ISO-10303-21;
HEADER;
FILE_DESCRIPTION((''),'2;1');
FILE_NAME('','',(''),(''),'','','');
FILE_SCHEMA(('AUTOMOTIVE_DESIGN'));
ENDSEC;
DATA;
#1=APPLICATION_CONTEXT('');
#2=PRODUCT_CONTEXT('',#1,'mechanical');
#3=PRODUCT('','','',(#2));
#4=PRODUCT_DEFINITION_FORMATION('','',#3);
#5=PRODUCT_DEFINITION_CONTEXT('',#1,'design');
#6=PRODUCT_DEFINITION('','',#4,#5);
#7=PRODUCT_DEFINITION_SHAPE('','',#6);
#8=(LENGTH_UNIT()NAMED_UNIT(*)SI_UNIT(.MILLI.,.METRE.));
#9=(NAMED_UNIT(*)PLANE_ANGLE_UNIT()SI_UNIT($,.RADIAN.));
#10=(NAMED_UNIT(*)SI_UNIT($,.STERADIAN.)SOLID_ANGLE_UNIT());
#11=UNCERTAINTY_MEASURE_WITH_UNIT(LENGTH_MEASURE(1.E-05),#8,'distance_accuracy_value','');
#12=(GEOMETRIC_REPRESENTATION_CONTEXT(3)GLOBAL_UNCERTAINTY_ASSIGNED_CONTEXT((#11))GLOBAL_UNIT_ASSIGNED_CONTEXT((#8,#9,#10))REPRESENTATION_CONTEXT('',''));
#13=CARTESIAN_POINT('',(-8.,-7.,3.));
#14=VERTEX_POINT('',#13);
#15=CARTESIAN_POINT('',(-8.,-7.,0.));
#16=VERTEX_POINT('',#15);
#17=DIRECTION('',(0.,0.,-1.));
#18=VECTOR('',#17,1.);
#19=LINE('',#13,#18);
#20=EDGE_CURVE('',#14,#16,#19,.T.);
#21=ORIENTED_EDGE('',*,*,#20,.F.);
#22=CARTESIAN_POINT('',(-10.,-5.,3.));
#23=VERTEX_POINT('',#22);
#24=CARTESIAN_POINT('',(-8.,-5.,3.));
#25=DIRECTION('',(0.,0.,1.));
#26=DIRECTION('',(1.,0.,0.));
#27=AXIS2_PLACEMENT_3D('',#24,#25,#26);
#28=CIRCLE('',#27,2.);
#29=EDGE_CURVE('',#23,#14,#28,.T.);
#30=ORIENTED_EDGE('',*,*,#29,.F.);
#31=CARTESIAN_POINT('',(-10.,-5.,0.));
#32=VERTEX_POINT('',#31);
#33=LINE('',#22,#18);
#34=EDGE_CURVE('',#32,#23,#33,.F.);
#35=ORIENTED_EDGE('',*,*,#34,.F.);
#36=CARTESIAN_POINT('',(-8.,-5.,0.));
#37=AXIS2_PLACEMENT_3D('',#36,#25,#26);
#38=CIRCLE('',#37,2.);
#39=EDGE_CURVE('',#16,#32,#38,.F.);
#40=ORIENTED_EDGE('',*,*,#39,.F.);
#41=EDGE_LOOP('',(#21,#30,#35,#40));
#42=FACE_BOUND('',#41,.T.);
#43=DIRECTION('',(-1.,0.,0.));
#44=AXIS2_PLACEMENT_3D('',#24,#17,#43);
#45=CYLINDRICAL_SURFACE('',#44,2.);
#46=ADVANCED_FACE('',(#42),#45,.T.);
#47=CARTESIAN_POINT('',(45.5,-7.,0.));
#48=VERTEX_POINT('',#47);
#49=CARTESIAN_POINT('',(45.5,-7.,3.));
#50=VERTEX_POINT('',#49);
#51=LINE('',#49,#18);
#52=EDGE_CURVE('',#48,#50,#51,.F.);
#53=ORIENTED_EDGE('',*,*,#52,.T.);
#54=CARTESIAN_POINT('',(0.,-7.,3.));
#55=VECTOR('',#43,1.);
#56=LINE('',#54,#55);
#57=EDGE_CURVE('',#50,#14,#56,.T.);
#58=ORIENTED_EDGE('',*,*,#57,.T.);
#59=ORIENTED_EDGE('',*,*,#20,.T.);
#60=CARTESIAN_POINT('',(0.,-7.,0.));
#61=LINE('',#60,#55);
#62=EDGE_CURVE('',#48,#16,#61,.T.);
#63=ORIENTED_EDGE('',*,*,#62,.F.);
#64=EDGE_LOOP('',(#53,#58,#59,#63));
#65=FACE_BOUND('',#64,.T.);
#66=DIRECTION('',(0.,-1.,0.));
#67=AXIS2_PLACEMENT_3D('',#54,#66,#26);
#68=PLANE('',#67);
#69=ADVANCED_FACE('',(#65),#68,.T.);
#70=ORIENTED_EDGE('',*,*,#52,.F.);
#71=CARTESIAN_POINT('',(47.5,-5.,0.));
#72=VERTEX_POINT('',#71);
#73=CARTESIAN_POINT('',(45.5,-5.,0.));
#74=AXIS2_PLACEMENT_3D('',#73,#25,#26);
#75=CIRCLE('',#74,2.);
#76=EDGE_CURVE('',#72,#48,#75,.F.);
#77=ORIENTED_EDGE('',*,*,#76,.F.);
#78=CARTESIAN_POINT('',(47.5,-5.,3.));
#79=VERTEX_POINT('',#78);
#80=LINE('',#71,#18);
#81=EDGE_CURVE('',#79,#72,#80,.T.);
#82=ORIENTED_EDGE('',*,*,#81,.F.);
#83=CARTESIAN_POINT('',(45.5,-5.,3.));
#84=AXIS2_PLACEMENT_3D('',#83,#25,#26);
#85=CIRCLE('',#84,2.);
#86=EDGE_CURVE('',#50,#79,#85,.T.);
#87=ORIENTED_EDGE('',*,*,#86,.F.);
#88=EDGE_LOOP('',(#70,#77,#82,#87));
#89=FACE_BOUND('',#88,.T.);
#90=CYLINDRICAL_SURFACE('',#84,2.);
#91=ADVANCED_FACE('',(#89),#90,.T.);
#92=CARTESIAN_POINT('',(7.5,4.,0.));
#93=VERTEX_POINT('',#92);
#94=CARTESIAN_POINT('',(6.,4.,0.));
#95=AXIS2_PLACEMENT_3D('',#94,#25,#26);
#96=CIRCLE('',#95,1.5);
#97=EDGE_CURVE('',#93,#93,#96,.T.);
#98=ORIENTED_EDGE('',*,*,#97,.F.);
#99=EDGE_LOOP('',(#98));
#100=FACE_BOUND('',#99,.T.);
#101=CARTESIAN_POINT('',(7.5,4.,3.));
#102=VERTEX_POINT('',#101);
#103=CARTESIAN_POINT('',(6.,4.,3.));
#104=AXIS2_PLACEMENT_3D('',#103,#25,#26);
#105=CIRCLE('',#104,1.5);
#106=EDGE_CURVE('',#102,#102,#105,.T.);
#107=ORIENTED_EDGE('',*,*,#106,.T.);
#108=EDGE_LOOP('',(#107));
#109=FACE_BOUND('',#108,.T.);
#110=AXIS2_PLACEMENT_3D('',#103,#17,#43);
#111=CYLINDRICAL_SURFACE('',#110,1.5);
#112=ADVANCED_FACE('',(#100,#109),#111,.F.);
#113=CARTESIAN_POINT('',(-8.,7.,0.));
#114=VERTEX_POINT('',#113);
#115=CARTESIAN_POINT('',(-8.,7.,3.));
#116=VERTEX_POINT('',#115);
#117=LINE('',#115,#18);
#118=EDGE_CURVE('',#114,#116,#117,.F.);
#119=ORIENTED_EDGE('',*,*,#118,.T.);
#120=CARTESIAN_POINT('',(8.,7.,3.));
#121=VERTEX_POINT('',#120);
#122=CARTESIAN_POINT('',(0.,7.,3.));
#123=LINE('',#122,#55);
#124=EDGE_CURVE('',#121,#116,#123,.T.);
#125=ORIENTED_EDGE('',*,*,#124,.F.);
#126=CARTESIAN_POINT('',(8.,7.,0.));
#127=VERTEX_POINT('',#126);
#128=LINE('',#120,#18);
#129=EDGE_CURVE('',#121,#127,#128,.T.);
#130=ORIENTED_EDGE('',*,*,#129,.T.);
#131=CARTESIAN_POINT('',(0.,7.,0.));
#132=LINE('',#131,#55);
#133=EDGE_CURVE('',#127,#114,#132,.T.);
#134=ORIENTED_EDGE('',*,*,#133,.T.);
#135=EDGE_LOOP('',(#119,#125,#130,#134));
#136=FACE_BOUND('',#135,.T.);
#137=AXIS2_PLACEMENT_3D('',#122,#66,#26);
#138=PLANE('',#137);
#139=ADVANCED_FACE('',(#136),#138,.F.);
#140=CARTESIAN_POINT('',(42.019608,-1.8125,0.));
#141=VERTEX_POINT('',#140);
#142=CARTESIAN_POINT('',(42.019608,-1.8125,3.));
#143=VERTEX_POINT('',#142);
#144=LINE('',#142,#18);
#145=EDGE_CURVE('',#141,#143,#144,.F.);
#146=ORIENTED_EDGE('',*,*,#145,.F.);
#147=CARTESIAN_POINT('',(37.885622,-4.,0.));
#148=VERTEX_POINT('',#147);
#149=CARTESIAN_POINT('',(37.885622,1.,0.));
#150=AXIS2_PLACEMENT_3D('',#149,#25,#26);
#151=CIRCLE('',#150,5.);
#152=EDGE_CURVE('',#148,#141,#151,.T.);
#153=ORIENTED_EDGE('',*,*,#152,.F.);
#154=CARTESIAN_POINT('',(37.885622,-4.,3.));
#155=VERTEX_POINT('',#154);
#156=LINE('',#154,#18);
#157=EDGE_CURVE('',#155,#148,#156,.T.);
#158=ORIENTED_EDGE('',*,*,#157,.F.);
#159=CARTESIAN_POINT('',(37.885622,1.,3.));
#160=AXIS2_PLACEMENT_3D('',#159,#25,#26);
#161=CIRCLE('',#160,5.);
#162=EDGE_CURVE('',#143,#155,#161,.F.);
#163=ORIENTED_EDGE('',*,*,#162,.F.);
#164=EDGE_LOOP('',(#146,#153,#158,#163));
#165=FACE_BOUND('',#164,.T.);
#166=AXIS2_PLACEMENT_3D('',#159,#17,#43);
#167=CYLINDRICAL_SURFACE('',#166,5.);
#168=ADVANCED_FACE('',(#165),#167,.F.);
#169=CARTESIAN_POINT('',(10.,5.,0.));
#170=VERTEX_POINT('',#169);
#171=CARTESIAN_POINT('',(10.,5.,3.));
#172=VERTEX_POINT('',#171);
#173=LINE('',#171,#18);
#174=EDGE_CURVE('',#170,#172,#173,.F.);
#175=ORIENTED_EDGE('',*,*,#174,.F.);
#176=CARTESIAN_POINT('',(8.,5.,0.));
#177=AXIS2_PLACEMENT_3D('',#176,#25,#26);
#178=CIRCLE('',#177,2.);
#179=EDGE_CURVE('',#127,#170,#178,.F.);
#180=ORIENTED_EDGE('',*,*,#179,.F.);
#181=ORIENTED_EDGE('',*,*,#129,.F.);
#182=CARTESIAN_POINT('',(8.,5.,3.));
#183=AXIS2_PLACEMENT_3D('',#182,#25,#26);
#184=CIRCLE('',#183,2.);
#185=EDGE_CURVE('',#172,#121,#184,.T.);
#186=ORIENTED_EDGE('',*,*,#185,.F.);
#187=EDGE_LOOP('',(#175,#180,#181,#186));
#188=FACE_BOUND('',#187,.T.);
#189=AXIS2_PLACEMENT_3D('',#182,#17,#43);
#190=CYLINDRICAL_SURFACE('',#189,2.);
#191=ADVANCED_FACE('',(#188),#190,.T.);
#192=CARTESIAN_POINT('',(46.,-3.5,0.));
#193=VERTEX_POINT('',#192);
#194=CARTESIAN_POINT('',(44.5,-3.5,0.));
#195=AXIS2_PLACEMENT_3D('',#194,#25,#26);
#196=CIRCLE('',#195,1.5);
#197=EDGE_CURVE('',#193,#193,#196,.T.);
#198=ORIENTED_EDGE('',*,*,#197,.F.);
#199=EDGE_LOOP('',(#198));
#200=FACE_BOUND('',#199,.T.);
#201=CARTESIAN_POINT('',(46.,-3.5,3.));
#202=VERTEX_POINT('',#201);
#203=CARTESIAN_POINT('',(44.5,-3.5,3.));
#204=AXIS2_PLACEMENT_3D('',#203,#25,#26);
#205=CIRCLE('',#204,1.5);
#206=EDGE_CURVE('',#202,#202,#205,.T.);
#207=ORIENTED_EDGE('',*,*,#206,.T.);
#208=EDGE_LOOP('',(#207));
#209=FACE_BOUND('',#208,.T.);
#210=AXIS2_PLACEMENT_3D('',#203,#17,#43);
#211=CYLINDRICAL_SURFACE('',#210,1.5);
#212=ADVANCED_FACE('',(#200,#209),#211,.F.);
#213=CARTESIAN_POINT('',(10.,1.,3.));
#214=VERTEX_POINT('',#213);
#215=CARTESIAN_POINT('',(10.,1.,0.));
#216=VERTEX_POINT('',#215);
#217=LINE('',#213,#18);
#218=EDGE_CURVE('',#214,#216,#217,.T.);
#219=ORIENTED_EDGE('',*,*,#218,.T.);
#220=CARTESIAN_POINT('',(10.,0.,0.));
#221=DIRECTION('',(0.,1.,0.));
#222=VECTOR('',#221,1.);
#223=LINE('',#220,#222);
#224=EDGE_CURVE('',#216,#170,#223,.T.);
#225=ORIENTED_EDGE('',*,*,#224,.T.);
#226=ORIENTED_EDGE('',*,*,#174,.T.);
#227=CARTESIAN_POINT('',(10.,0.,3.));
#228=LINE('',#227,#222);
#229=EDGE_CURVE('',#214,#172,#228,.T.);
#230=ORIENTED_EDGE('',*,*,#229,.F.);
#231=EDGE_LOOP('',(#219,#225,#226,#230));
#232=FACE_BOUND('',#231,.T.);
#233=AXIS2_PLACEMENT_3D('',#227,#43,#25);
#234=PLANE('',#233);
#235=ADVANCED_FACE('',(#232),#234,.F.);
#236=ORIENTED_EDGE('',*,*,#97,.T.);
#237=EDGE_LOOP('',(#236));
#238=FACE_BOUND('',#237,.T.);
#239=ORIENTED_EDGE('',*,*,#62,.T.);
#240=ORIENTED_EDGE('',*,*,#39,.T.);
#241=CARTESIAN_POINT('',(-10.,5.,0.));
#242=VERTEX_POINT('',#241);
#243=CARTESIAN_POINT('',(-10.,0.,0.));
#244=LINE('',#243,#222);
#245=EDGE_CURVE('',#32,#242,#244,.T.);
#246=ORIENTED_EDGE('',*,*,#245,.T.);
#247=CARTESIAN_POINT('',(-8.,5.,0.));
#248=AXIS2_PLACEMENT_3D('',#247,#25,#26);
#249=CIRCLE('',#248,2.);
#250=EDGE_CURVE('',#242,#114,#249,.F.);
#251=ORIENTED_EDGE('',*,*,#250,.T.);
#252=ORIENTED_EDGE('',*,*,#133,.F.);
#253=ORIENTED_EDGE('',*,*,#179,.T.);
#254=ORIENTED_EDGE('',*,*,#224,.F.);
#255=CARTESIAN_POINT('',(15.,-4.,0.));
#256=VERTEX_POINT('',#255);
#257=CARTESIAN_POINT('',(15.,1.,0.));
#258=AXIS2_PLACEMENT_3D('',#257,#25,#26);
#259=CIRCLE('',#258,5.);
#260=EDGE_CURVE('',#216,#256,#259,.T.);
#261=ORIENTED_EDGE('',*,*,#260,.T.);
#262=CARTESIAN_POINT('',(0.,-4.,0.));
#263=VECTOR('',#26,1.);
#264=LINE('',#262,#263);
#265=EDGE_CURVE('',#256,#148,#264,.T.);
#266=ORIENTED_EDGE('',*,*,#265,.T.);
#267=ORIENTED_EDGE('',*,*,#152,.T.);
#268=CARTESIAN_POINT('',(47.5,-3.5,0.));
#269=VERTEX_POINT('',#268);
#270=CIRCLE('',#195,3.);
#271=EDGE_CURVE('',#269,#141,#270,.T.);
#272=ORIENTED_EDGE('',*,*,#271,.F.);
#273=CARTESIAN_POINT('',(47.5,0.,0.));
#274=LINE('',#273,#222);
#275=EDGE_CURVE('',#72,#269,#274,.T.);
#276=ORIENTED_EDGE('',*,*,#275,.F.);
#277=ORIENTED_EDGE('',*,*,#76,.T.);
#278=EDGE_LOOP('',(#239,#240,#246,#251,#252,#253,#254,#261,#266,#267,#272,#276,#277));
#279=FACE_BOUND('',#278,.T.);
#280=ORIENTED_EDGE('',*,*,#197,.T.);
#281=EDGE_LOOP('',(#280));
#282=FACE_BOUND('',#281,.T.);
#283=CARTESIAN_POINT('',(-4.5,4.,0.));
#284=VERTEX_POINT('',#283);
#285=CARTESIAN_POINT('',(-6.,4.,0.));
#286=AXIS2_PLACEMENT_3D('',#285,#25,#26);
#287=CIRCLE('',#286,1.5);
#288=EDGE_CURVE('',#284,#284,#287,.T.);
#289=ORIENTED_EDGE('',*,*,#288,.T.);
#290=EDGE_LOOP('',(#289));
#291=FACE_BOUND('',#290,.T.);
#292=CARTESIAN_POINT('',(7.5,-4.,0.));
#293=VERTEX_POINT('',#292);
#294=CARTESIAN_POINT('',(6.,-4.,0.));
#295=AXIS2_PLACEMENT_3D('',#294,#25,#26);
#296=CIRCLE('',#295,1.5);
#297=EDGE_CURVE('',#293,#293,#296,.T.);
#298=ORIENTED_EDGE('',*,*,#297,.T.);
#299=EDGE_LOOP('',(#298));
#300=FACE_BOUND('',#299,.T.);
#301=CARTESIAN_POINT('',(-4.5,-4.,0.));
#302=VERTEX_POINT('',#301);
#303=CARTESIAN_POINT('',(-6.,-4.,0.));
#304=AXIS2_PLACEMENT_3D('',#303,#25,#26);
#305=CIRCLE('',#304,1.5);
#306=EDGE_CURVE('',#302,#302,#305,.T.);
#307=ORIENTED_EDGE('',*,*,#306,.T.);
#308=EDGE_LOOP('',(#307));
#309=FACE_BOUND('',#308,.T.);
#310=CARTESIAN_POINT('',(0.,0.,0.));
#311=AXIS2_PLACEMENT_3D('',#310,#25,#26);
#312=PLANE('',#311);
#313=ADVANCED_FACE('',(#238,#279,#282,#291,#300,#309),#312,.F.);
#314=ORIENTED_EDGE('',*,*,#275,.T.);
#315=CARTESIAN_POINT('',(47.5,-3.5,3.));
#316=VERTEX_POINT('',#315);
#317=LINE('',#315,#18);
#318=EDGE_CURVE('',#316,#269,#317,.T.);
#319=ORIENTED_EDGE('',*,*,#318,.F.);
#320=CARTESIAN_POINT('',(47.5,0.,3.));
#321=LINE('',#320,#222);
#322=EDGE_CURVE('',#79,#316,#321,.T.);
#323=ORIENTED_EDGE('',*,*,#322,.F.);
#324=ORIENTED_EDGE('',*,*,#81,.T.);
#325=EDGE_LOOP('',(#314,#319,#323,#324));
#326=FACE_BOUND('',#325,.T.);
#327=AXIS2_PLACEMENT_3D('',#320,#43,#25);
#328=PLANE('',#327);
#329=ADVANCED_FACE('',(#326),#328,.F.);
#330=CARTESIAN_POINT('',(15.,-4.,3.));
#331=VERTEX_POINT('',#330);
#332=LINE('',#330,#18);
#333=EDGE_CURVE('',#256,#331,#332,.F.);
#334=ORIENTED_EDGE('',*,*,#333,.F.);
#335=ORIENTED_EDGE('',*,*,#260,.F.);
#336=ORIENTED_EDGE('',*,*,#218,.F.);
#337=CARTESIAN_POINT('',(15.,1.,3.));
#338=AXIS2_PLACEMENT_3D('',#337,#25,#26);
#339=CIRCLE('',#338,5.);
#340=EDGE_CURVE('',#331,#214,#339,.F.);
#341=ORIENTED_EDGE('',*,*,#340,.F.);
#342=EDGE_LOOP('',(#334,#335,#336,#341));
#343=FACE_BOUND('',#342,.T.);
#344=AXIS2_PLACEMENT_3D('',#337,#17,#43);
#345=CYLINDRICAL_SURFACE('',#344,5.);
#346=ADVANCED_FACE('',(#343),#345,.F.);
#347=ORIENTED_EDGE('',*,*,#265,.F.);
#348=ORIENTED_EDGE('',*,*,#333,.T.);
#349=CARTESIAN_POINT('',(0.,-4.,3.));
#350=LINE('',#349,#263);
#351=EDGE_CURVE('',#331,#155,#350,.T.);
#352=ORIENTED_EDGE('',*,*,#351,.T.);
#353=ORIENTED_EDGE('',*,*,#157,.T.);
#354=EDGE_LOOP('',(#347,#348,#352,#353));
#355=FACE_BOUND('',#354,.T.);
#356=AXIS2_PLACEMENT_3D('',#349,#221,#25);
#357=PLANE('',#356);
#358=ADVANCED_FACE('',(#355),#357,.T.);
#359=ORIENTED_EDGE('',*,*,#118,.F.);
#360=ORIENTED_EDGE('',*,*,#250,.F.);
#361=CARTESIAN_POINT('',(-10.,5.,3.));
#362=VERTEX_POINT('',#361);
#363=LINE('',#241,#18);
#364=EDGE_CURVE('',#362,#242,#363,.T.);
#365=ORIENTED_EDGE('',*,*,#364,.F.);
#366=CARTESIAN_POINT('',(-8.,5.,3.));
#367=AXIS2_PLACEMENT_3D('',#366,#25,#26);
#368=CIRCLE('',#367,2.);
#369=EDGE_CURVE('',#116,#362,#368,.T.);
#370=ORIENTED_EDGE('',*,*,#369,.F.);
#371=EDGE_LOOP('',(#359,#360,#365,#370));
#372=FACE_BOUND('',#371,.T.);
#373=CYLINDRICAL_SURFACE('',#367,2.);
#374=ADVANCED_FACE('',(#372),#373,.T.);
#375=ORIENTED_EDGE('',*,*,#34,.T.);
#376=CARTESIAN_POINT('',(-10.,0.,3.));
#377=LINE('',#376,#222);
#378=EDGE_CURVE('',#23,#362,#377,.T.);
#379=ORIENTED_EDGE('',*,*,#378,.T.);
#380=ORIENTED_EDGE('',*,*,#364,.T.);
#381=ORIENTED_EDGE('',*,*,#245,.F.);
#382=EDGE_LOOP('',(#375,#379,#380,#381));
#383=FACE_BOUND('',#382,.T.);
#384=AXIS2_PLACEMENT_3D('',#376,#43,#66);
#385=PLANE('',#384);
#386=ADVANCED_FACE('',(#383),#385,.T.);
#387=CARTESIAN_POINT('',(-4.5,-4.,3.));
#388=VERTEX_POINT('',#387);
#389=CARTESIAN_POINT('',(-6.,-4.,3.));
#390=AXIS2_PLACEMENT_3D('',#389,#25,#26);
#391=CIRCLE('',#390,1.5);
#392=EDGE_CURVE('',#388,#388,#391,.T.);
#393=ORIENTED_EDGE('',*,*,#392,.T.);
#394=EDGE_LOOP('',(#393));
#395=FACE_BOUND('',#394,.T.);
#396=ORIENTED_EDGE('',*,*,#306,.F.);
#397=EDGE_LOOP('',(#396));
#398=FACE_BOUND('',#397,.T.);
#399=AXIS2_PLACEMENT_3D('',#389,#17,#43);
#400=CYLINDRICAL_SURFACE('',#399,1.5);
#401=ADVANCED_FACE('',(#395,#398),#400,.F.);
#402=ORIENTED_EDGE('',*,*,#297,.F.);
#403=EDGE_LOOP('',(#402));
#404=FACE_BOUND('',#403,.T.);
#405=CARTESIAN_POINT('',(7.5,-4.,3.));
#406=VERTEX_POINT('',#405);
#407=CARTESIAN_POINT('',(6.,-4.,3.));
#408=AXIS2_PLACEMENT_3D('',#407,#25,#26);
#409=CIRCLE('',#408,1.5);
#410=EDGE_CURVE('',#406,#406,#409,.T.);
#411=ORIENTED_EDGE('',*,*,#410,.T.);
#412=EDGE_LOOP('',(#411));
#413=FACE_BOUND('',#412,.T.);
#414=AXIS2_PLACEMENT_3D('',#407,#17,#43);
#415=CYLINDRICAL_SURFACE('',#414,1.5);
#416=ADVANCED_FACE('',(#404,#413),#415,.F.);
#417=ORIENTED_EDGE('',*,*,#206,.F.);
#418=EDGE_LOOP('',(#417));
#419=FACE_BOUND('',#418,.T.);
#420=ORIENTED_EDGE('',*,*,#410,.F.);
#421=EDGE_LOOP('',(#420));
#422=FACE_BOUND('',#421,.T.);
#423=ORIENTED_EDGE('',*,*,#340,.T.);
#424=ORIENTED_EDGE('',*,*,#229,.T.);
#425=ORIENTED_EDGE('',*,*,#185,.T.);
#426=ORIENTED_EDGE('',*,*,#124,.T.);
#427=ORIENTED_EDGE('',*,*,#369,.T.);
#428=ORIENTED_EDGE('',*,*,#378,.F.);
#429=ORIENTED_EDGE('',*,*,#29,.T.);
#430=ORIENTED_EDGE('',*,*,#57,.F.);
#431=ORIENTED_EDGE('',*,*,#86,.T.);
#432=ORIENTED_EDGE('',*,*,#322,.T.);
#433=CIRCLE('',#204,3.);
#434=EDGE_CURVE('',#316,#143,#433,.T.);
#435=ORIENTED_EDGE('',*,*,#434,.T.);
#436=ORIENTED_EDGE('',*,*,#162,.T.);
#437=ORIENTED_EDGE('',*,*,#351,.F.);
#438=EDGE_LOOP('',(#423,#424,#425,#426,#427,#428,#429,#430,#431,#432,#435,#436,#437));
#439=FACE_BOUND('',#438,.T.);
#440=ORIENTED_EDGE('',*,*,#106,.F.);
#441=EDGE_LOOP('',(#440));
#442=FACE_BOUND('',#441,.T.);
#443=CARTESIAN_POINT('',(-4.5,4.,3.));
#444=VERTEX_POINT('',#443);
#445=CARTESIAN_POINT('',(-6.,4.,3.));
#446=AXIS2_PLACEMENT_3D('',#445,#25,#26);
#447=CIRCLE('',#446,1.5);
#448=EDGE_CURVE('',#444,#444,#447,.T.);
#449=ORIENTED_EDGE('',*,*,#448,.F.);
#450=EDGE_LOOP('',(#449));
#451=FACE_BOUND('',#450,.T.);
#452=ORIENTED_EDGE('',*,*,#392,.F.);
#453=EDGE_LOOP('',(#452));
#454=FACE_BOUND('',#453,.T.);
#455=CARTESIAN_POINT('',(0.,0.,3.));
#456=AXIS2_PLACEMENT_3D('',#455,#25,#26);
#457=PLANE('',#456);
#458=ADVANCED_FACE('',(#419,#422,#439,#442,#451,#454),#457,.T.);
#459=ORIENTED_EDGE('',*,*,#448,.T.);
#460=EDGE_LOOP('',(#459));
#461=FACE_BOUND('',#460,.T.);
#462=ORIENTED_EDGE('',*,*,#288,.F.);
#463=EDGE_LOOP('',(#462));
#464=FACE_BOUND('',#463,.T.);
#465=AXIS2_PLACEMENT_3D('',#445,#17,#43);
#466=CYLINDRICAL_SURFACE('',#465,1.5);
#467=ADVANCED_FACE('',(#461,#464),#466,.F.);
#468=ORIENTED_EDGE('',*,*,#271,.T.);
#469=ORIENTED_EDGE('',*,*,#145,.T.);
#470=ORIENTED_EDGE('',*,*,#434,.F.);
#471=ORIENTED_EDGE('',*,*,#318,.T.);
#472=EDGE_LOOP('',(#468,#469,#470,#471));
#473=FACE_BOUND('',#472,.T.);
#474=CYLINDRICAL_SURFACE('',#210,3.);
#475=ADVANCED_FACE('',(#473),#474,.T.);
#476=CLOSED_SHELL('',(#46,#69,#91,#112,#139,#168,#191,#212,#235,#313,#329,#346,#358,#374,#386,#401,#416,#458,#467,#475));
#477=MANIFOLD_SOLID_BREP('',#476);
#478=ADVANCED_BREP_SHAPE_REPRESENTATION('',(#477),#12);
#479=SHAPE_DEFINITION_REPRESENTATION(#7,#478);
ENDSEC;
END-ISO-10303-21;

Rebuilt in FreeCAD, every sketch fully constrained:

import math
import FreeCAD as App
import Part
import Sketcher

V = App.Vector
Q = App.Units.Quantity


def edges_at(feature, points):
    """Names of the edges that pass closest to the given points."""
    edges = feature.Shape.Edges
    near = lambda p: min(range(len(edges)), key=lambda i: edges[i].distToShape(Part.Vertex(*p))[0])
    return sorted({f"Edge{near(p) + 1}" for p in points})

doc = App.newDocument("Part")
body = doc.addObject("PartDesign::Body", "Body")

# Sketch on XY plane
sketch1 = body.newObject("Sketcher::SketchObject", "Sketch")
sketch1.AttachmentSupport = (doc.getObject("XY_Plane"), [""])
sketch1.MapMode = "FlatFace"
sketch1.addGeometry(Part.LineSegment(V(-10, 7, 0), V(-10, -7, 0)), False)
sketch1.addGeometry(Part.LineSegment(V(-10, -7, 0), V(47.5, -7, 0)), False)
sketch1.addGeometry(Part.LineSegment(V(47.5, -7, 0), V(47.5, -3.5, 0)), False)
sketch1.addGeometry(Part.ArcOfCircle(Part.Circle(V(44.5, -3.5, 0), V(0, 0, 1), 3), math.radians(0), math.radians(190)), False)
sketch1.addGeometry(Part.LineSegment(V(41.5, -4, 0), V(10, -4, 0)), False)
sketch1.addGeometry(Part.LineSegment(V(10, -4, 0), V(10, 7, 0)), False)
sketch1.addGeometry(Part.LineSegment(V(10, 7, 0), V(-10, 7, 0)), False)
sketch1.addGeometry(Part.Circle(V(-6, -4, 0), V(0, 0, 1), 1.5), False)
sketch1.addGeometry(Part.Circle(V(6, -4, 0), V(0, 0, 1), 1.5), False)
sketch1.addGeometry(Part.Circle(V(-6, 4, 0), V(0, 0, 1), 1.5), False)
sketch1.addGeometry(Part.Circle(V(6, 4, 0), V(0, 0, 1), 1.5), False)
sketch1.addGeometry(Part.Circle(V(44.5, -3.5, 0), V(0, 0, 1), 1.5), False)
sketch1.addConstraint(Sketcher.Constraint("Coincident", 0, 2, 1, 1))
sketch1.addConstraint(Sketcher.Constraint("Coincident", 1, 2, 2, 1))
sketch1.addConstraint(Sketcher.Constraint("Tangent", 2, 2, 3, 1))
sketch1.addConstraint(Sketcher.Constraint("Coincident", 3, 2, 4, 1))
sketch1.addConstraint(Sketcher.Constraint("Coincident", 4, 2, 5, 1))
sketch1.addConstraint(Sketcher.Constraint("Coincident", 5, 2, 6, 1))
sketch1.addConstraint(Sketcher.Constraint("Coincident", 6, 2, 0, 1))
sketch1.addConstraint(Sketcher.Constraint("Vertical", 0))
sketch1.addConstraint(Sketcher.Constraint("Horizontal", 1))
sketch1.addConstraint(Sketcher.Constraint("Vertical", 2))
sketch1.addConstraint(Sketcher.Constraint("Horizontal", 4))
sketch1.addConstraint(Sketcher.Constraint("Vertical", 5))
sketch1.addConstraint(Sketcher.Constraint("Horizontal", 6))
sketch1.addConstraint(Sketcher.Constraint("Coincident", 11, 3, 3, 3))
sketch1.addConstraint(Sketcher.Constraint("Equal", 7, 8))
sketch1.addConstraint(Sketcher.Constraint("Equal", 8, 9))
sketch1.addConstraint(Sketcher.Constraint("Equal", 9, 10))
sketch1.addConstraint(Sketcher.Constraint("Equal", 10, 11))
sketch1.addConstraint(Sketcher.Constraint("Symmetric", 8, 3, 9, 3, -1, 1))
sketch1.addConstraint(Sketcher.Constraint("Symmetric", 7, 3, 10, 3, -1, 1))
sketch1.addConstraint(Sketcher.Constraint("Symmetric", 0, 2, 5, 2, -1, 1))
sketch1.addConstraint(Sketcher.Constraint("Symmetric", 7, 3, 8, 3, -2))
sketch1.addConstraint(Sketcher.Constraint("Horizontal", 8, 3, 3, 2))
sketch1.addConstraint(Sketcher.Constraint("Diameter", 7, Q("3 mm")))
sketch1.addConstraint(Sketcher.Constraint("Radius", 3, Q("3 mm")))
sketch1.addConstraint(Sketcher.Constraint("DistanceX", 6, 2, 6, 1, Q("20 mm")))
sketch1.addConstraint(Sketcher.Constraint("DistanceY", 0, 2, 0, 1, Q("14 mm")))
sketch1.addConstraint(Sketcher.Constraint("DistanceY", 5, 1, 5, 2, Q("11 mm")))
sketch1.addConstraint(Sketcher.Constraint("DistanceX", 1, 1, 1, 2, Q("57.5 mm")))
sketch1.addConstraint(Sketcher.Constraint("DistanceY", 2, 1, 2, 2, Q("3.5 mm")))
sketch1.addConstraint(Sketcher.Constraint("DistanceX", 7, 3, -1, 1, Q("6 mm")))
pad1 = body.newObject("PartDesign::Pad", "Pad")
pad1.Profile = sketch1
pad1.Length = 3
doc.recompute()

fillet = body.newObject("PartDesign::Fillet", "Fillet")
fillet.Base = (pad1, edges_at(pad1, [
    (-10, 7, 1.5),
    (10, 7, 1.5),
    (47.5, -7, 1.5),
    (-10, -7, 1.5),
]))
fillet.Radius = 2
doc.recompute()

fillet2 = body.newObject("PartDesign::Fillet", "Fillet001")
fillet2.Base = (fillet, edges_at(fillet, [(10, -4, 1.5), (41.542, -4, 1.5)]))
fillet2.Radius = 5

doc.recompute()
